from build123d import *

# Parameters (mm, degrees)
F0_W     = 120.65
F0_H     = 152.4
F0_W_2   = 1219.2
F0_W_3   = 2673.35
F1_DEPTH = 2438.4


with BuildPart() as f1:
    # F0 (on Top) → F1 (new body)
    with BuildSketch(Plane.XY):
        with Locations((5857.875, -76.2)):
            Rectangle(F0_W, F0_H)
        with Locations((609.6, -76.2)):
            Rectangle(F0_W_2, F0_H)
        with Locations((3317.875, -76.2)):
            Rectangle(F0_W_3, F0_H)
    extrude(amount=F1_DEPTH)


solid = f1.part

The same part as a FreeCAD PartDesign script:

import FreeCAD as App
import Part
import Sketcher

V = App.Vector
Q = App.Units.Quantity

doc = App.newDocument("Part")
body = doc.addObject("PartDesign::Body", "Body")
body.AllowCompound = True

# Sketch on XY plane
sketch1 = doc.addObject("Sketcher::SketchObject", "Sketch")
body.addObject(sketch1)
sketch1.AttachmentSupport = (doc.XY_Plane, [""])
sketch1.MapMode = "FlatFace"
sketch1.addGeometry([
    Part.LineSegment(V(5798, 0, 0), V(5798, -152, 0)),  # 0
    Part.LineSegment(V(5798, -152, 0), V(5918, -152, 0)),  # 1
    Part.LineSegment(V(5918, -152, 0), V(5918, 0, 0)),  # 2
    Part.LineSegment(V(5918, 0, 0), V(5798, 0, 0)),  # 3
    Part.LineSegment(V(0, 0, 0), V(0, -152, 0)),  # 4
    Part.LineSegment(V(0, -152, 0), V(1219, -152, 0)),  # 5
    Part.LineSegment(V(1219, -152, 0), V(1219, 0, 0)),  # 6
    Part.LineSegment(V(1219, 0, 0), V(0, 0, 0)),  # 7
    Part.LineSegment(V(1981, 0, 0), V(1981, -152, 0)),  # 8
    Part.LineSegment(V(1981, -152, 0), V(4655, -152, 0)),  # 9
    Part.LineSegment(V(4655, -152, 0), V(4655, 0, 0)),  # 10
    Part.LineSegment(V(4655, 0, 0), V(1981, 0, 0)),  # 11
], False)
sketch1.addConstraint([
    Sketcher.Constraint("Coincident", 0, 2, 1, 1),
    Sketcher.Constraint("Coincident", 1, 2, 2, 1),
    Sketcher.Constraint("Coincident", 2, 2, 3, 1),
    Sketcher.Constraint("Coincident", 3, 2, 0, 1),
    Sketcher.Constraint("Coincident", 4, 2, 5, 1),
    Sketcher.Constraint("Coincident", 5, 2, 6, 1),
    Sketcher.Constraint("Coincident", 6, 2, 7, 1),
    Sketcher.Constraint("Coincident", 7, 2, 4, 1),
    Sketcher.Constraint("Coincident", 8, 2, 9, 1),
    Sketcher.Constraint("Coincident", 9, 2, 10, 1),
    Sketcher.Constraint("Coincident", 10, 2, 11, 1),
    Sketcher.Constraint("Coincident", 11, 2, 8, 1),
    Sketcher.Constraint("Vertical", 0),
    Sketcher.Constraint("Horizontal", 1),
    Sketcher.Constraint("Vertical", 2),
    Sketcher.Constraint("Horizontal", 3),
    Sketcher.Constraint("Vertical", 4),
    Sketcher.Constraint("Horizontal", 5),
    Sketcher.Constraint("Vertical", 6),
    Sketcher.Constraint("Horizontal", 7),
    Sketcher.Constraint("Vertical", 8),
    Sketcher.Constraint("Horizontal", 9),
    Sketcher.Constraint("Vertical", 10),
    Sketcher.Constraint("Horizontal", 11),
    Sketcher.Constraint("Coincident", 7, 2, -1, 1),
    Sketcher.Constraint("PointOnObject", 2, 2, -1),
    Sketcher.Constraint("PointOnObject", 10, 2, -1),
    Sketcher.Constraint("Horizontal", 1, 2, 4, 2),
    Sketcher.Constraint("Horizontal", 5, 2, 8, 2),
    Sketcher.Constraint("DistanceX", 5, 1, 5, 2, Q("48 in")),
    Sketcher.Constraint("DistanceY", 0, 2, 0, 1, Q("6 in")),
    Sketcher.Constraint("DistanceX", -1, 1, 1, 2, Q("233 in")),
    Sketcher.Constraint("DistanceX", -1, 1, 8, 2, Q("78 in")),
    Sketcher.Constraint("DistanceX", 9, 2, 0, 2, Q("45 in")),
    Sketcher.Constraint("DistanceX", 1, 1, 1, 2, Q("4.75 in")),
])
pad1 = doc.addObject("PartDesign::Pad", "Pad")
body.addObject(pad1)
pad1.Profile = sketch1
pad1.Length = Q("96 in")

doc.recompute()
